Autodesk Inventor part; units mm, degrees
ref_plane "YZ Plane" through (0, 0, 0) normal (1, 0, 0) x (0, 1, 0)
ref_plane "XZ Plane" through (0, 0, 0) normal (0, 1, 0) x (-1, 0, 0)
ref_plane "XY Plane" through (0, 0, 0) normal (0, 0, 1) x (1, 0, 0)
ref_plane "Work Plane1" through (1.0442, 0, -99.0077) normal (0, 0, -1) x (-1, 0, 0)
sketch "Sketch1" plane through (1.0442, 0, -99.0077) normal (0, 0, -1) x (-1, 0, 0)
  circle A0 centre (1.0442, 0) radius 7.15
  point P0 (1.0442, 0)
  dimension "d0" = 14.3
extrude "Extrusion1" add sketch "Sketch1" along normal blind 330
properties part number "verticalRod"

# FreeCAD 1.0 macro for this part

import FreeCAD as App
import Part
import Sketcher
Q = App.Units.Quantity

doc = App.newDocument("Part")
body = doc.addObject("PartDesign::Body", "Body")

# Sketch on XY plane
sketch1 = doc.addObject("Sketcher::SketchObject", "Sketch")
body.addObject(sketch1)
sketch1.AttachmentSupport = (doc.XY_Plane, [""])
sketch1.MapMode = "FlatFace"
sketch1.AttachmentOffset = App.Placement(App.Vector(0, 0, -99.0077), App.Rotation())
sketch1.addGeometry(Part.Circle(App.Vector(0, 0, 0), App.Vector(0, 0, 1), 7), False)
sketch1.addConstraint([
    Sketcher.Constraint("Coincident", 0, 3, -1, 1),
    Sketcher.Constraint("Diameter", 0, Q("14.3 mm")),
])
pad1 = doc.addObject("PartDesign::Pad", "Pad")
body.addObject(pad1)
pad1.Profile = sketch1
pad1.Length = 330
pad1.Reversed = True

doc.recompute()
